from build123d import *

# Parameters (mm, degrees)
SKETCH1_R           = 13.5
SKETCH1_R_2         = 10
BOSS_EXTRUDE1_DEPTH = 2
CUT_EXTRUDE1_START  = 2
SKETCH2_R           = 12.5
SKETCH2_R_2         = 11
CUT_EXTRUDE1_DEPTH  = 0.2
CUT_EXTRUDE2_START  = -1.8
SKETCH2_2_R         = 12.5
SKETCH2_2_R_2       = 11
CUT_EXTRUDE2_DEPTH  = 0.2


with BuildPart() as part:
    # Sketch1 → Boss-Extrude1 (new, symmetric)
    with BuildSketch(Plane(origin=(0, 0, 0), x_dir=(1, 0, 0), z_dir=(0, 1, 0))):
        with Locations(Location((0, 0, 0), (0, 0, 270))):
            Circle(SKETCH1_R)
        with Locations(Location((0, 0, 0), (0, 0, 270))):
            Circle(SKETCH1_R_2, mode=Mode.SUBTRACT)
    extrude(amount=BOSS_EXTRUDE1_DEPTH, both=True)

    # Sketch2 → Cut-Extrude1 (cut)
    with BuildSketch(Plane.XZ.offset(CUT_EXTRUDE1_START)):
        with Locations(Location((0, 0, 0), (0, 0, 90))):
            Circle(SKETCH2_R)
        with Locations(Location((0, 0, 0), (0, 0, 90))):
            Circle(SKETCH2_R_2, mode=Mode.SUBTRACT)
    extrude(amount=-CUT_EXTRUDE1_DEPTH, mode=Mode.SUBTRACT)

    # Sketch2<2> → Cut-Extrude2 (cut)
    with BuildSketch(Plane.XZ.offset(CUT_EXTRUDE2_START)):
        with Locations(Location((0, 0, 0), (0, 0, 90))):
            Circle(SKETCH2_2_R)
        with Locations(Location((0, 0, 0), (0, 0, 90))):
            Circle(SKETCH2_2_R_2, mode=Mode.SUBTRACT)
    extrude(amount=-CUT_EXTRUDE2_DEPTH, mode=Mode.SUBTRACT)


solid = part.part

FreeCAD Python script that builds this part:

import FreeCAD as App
import Part
import Sketcher

doc = App.newDocument("Part")
params = doc.addObject("Spreadsheet::Sheet", "Params")
for row, (alias, value) in enumerate([
    ("sketch1_diameter", "27 mm"),
    ("sketch1_diameter2", "20 mm"),
    ("pad1_length", "4 mm"),
    ("sketch2_diameter", "25 mm"),
    ("sketch2_diameter2", "22 mm"),
    ("pocket1_length", "0.2 mm"),
    ("sketch3_diameter", "25 mm"),
    ("sketch3_diameter2", "22 mm"),
    ("pocket2_length", "0.2 mm"),
], start=1):
    params.set(f"A{row}", alias)
    params.set(f"B{row}", "=" + value)
    params.setAlias(f"B{row}", alias)

body = doc.addObject("PartDesign::Body", "Body")

sketch1 = doc.addObject("Sketcher::SketchObject", "Sketch")
body.addObject(sketch1)
sketch1.AttachmentSupport = (doc.XZ_Plane, [""])
sketch1.MapMode = "FlatFace"
sketch1.addGeometry([
    Part.Circle(App.Vector(0, 0, 0), App.Vector(0, 0, 1), 14),
    Part.Circle(App.Vector(0, 0, 0), App.Vector(0, 0, 1), 10),
], False)
sketch1.addConstraint([
    Sketcher.Constraint("Coincident", 0, 3, -1, 1),
    Sketcher.Constraint("Coincident", 1, 3, -1, 1),
    Sketcher.Constraint("Diameter", 0, 27.0),
    Sketcher.Constraint("Diameter", 1, 20.0),
])
sketch1.setExpression("Constraints[2]", "Params.sketch1_diameter")
sketch1.setExpression("Constraints[3]", "Params.sketch1_diameter2")
pad1 = doc.addObject("PartDesign::Pad", "Pad")
body.addObject(pad1)
pad1.Profile = sketch1
pad1.setExpression("Length", "Params.pad1_length")
pad1.Midplane = True

sketch2 = doc.addObject("Sketcher::SketchObject", "Sketch001")
body.addObject(sketch2)
sketch2.AttachmentSupport = (doc.XZ_Plane, [""])
sketch2.MapMode = "FlatFace"
sketch2.AttachmentOffset = App.Placement(App.Vector(0, 0, 2), App.Rotation())
sketch2.addGeometry([
    Part.Circle(App.Vector(0, 0, 0), App.Vector(0, 0, 1), 12),
    Part.Circle(App.Vector(0, 0, 0), App.Vector(0, 0, 1), 11),
], False)
sketch2.addConstraint([
    Sketcher.Constraint("Coincident", 0, 3, -1, 1),
    Sketcher.Constraint("Coincident", 1, 3, -1, 1),
    Sketcher.Constraint("Diameter", 0, 25.0),
    Sketcher.Constraint("Diameter", 1, 22.0),
])
sketch2.setExpression("Constraints[2]", "Params.sketch2_diameter")
sketch2.setExpression("Constraints[3]", "Params.sketch2_diameter2")
pocket1 = doc.addObject("PartDesign::Pocket", "Pocket")
body.addObject(pocket1)
pocket1.Profile = sketch2
pocket1.setExpression("Length", "Params.pocket1_length")

sketch3 = doc.addObject("Sketcher::SketchObject", "Sketch002")
body.addObject(sketch3)
sketch3.AttachmentSupport = (doc.XZ_Plane, [""])
sketch3.MapMode = "FlatFace"
sketch3.AttachmentOffset = App.Placement(App.Vector(0, 0, -1.8), App.Rotation())
sketch3.addGeometry([
    Part.Circle(App.Vector(0, 0, 0), App.Vector(0, 0, 1), 12),
    Part.Circle(App.Vector(0, 0, 0), App.Vector(0, 0, 1), 11),
], False)
sketch3.addConstraint([
    Sketcher.Constraint("Coincident", 0, 3, -1, 1),
    Sketcher.Constraint("Coincident", 1, 3, -1, 1),
    Sketcher.Constraint("Diameter", 0, 25.0),
    Sketcher.Constraint("Diameter", 1, 22.0),
])
sketch3.setExpression("Constraints[2]", "Params.sketch3_diameter")
sketch3.setExpression("Constraints[3]", "Params.sketch3_diameter2")
pocket2 = doc.addObject("PartDesign::Pocket", "Pocket001")
body.addObject(pocket2)
pocket2.Profile = sketch3
pocket2.setExpression("Length", "Params.pocket2_length")

doc.recompute()
